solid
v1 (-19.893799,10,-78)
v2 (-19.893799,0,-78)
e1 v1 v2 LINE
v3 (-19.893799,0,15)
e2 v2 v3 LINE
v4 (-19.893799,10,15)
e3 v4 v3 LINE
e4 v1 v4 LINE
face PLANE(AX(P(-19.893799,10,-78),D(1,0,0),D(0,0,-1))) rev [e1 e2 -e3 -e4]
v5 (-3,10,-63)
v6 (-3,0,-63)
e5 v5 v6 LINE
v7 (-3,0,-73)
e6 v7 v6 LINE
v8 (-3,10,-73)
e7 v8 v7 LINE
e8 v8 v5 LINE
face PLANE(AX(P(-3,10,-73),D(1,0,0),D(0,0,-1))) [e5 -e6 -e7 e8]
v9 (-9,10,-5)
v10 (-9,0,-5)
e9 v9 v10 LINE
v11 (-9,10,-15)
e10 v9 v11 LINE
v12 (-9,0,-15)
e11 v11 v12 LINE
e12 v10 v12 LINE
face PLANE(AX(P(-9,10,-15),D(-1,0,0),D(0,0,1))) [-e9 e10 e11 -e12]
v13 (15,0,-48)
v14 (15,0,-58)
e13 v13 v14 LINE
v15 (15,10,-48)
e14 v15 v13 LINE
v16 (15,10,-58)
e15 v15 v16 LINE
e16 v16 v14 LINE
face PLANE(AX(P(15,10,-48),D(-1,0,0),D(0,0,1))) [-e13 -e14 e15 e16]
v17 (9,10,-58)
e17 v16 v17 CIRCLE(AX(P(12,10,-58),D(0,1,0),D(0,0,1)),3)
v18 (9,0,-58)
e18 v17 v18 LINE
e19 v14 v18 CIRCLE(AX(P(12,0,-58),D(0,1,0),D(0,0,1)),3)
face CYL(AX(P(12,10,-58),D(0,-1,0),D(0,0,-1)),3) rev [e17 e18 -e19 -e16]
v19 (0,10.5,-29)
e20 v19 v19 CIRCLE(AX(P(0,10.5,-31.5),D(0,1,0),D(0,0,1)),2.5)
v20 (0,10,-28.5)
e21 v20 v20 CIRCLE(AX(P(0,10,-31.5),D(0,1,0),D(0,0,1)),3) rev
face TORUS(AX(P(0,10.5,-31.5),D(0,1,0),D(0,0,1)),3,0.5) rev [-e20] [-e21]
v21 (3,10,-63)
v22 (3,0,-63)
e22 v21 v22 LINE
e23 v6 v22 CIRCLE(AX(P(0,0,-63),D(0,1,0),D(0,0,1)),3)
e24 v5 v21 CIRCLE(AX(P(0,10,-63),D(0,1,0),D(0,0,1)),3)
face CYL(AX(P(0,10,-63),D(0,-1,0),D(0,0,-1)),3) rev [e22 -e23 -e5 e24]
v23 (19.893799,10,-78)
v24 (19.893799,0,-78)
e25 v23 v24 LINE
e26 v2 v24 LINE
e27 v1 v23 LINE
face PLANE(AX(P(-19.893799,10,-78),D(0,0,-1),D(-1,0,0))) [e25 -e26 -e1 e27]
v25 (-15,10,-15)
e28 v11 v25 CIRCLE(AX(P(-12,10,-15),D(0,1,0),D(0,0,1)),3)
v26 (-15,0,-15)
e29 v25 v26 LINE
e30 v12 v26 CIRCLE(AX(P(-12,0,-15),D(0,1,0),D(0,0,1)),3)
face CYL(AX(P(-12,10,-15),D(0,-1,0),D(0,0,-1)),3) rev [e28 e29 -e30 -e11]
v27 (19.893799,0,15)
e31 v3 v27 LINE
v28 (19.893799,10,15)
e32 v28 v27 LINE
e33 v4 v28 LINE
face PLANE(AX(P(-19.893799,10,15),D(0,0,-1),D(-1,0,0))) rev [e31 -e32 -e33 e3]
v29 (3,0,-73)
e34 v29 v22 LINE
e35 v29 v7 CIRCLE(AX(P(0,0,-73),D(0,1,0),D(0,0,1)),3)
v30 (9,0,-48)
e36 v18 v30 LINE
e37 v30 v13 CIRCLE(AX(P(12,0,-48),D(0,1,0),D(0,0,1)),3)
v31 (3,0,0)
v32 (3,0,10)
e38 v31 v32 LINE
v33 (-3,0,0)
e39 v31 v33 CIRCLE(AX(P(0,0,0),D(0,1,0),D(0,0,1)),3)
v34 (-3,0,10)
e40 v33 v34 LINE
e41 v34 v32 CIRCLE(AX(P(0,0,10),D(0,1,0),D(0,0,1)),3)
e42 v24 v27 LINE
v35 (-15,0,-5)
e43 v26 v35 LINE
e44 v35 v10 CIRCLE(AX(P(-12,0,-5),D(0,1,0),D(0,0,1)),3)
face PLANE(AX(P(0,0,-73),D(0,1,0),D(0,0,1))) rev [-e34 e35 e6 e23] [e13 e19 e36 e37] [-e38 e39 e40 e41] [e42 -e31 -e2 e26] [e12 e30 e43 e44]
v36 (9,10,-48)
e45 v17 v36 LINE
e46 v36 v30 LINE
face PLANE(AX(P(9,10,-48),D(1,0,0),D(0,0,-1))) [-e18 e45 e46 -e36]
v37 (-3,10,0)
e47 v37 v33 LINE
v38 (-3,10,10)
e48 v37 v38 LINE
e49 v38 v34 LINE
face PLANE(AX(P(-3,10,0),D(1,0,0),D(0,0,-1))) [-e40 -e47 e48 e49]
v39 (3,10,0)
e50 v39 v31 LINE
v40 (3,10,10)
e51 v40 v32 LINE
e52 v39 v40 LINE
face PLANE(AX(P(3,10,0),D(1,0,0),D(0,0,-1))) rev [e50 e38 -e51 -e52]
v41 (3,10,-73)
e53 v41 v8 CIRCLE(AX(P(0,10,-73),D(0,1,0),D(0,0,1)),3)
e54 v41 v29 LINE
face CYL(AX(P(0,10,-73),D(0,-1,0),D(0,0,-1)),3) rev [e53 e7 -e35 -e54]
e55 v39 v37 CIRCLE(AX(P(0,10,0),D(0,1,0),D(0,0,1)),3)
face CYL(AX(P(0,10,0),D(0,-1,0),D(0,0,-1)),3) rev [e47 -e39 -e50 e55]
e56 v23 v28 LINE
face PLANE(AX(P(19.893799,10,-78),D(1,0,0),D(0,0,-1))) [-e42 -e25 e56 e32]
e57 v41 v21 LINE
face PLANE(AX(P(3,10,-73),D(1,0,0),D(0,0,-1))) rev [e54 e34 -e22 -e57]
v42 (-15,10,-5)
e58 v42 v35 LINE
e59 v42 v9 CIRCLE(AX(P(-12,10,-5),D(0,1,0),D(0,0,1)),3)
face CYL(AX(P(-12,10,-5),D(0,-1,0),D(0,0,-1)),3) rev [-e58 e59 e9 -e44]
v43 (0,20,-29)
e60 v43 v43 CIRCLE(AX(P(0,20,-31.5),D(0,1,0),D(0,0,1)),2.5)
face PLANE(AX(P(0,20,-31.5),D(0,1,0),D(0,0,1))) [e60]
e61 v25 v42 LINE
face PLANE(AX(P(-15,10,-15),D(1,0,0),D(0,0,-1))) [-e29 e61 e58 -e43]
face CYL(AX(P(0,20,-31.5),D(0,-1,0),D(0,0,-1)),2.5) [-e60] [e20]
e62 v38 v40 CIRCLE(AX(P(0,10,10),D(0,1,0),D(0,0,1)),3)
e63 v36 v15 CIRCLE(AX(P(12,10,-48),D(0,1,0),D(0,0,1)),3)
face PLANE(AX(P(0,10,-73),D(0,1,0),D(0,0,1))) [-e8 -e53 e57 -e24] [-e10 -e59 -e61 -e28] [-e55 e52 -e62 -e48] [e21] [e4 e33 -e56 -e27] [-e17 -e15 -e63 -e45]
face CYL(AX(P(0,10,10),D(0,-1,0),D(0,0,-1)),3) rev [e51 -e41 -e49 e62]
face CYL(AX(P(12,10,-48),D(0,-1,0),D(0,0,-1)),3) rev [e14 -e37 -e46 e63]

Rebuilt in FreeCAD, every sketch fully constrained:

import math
import FreeCAD as App
import Part
import Sketcher


def edges_at(feature, points):
    """Names of the edges that pass closest to the given points."""
    edges = feature.Shape.Edges
    near = lambda p: min(range(len(edges)), key=lambda i: edges[i].distToShape(Part.Vertex(*p))[0])
    return sorted({f"Edge{near(p) + 1}" for p in points})

doc = App.newDocument("Part")
body = doc.addObject("PartDesign::Body", "Body")

sketch1 = body.newObject("Sketcher::SketchObject", "Sketch")
sketch1.AttachmentSupport = (doc.getObject("XZ_Plane"), [""])
sketch1.MapMode = "FlatFace"
sketch1.addGeometry(Part.LineSegment(App.Vector(0, -78, 0), App.Vector(-19.893799, -78, 0)), False)
sketch1.addGeometry(Part.LineSegment(App.Vector(-19.893799, -78, 0), App.Vector(-19.893799, 15, 0)), False)
sketch1.addGeometry(Part.LineSegment(App.Vector(-19.893799, 15, 0), App.Vector(0, 15, 0)), False)
sketch1.addGeometry(Part.LineSegment(App.Vector(0, 15, 0), App.Vector(0, 13, 0)), False)
sketch1.addGeometry(Part.ArcOfCircle(Part.Circle(App.Vector(0, 10, 0), App.Vector(0, 0, 1), 3), math.radians(90), math.radians(180)), False)
sketch1.addGeometry(Part.LineSegment(App.Vector(-3, 10, 0), App.Vector(-3, 0, 0)), False)
sketch1.addGeometry(Part.ArcOfCircle(Part.Circle(App.Vector(0, 0, 0), App.Vector(0, 0, 1), 3), math.radians(180), math.radians(270)), False)
sketch1.addGeometry(Part.LineSegment(App.Vector(0, -3, 0), App.Vector(0, -60, 0)), False)
sketch1.addGeometry(Part.ArcOfCircle(Part.Circle(App.Vector(0, -63, 0), App.Vector(0, 0, 1), 3), math.radians(90), math.radians(180)), False)
sketch1.addGeometry(Part.LineSegment(App.Vector(-3, -63, 0), App.Vector(-3, -73, 0)), False)
sketch1.addGeometry(Part.ArcOfCircle(Part.Circle(App.Vector(0, -73, 0), App.Vector(0, 0, 1), 3), math.radians(180), math.radians(270)), False)
sketch1.addGeometry(Part.LineSegment(App.Vector(0, -76, 0), App.Vector(0, -78, 0)), False)
sketch1.addConstraint(Sketcher.Constraint("Coincident", 0, 2, 1, 1))
sketch1.addConstraint(Sketcher.Constraint("Coincident", 1, 2, 2, 1))
sketch1.addConstraint(Sketcher.Constraint("Coincident", 2, 2, 3, 1))
sketch1.addConstraint(Sketcher.Constraint("Coincident", 3, 2, 4, 1))
sketch1.addConstraint(Sketcher.Constraint("Tangent", 4, 2, 5, 1))
sketch1.addConstraint(Sketcher.Constraint("Tangent", 5, 2, 6, 1))
sketch1.addConstraint(Sketcher.Constraint("Coincident", 6, 2, 7, 1))
sketch1.addConstraint(Sketcher.Constraint("Coincident", 7, 2, 8, 1))
sketch1.addConstraint(Sketcher.Constraint("Tangent", 8, 2, 9, 1))
sketch1.addConstraint(Sketcher.Constraint("Tangent", 9, 2, 10, 1))
sketch1.addConstraint(Sketcher.Constraint("Coincident", 10, 2, 11, 1))
sketch1.addConstraint(Sketcher.Constraint("Coincident", 11, 2, 0, 1))
sketch1.addConstraint(Sketcher.Constraint("Horizontal", 0))
sketch1.addConstraint(Sketcher.Constraint("Vertical", 1))
sketch1.addConstraint(Sketcher.Constraint("Horizontal", 2))
sketch1.addConstraint(Sketcher.Constraint("Vertical", 3))
sketch1.addConstraint(Sketcher.Constraint("Vertical", 5))
sketch1.addConstraint(Sketcher.Constraint("Vertical", 7))
sketch1.addConstraint(Sketcher.Constraint("Vertical", 9))
sketch1.addConstraint(Sketcher.Constraint("Vertical", 11))
sketch1.addConstraint(Sketcher.Constraint("Coincident", 6, 3, -1, 1))
sketch1.addConstraint(Sketcher.Constraint("Equal", 4, 6))
sketch1.addConstraint(Sketcher.Constraint("Equal", 6, 8))
sketch1.addConstraint(Sketcher.Constraint("Equal", 8, 10))
sketch1.addConstraint(Sketcher.Constraint("PointOnObject", 8, 3, -2))
sketch1.addConstraint(Sketcher.Constraint("PointOnObject", 2, 2, -2))
sketch1.addConstraint(Sketcher.Constraint("PointOnObject", 6, 2, -2))
sketch1.addConstraint(Sketcher.Constraint("PointOnObject", 10, 2, -2))
sketch1.addConstraint(Sketcher.Constraint("Equal", 5, 9))
sketch1.addConstraint(Sketcher.Constraint("Equal", 3, 11))
sketch1.addConstraint(Sketcher.Constraint("Radius", 4, 3.0))
sketch1.addConstraint(Sketcher.Constraint("DistanceY", 1, 1, 1, 2, 93.0))
sketch1.addConstraint(Sketcher.Constraint("DistanceY", 3, 2, 3, 1, 2.0))
sketch1.addConstraint(Sketcher.Constraint("DistanceY", 5, 2, 5, 1, 10.0))
sketch1.addConstraint(Sketcher.Constraint("DistanceX", 0, 2, 0, 1, 19.893799))
pad1 = body.newObject("PartDesign::Pad", "Pad")
pad1.Profile = sketch1
pad1.Length = 10
pad1.Reversed = True
doc.recompute()

mirrored = body.newObject("PartDesign::Mirrored", "Mirrored")
mirrored.Originals = [pad1]
mirrored.MirrorPlane = (doc.getObject("YZ_Plane"), [""])
body.Tip = mirrored

sketch2 = body.newObject("Sketcher::SketchObject", "Sketch001")
sketch2.AttachmentSupport = (doc.getObject("XZ_Plane"), [""])
sketch2.MapMode = "FlatFace"
sketch2.addGeometry(Part.LineSegment(App.Vector(-15, -15, 0), App.Vector(-15, -5, 0)), False)
sketch2.addGeometry(Part.ArcOfCircle(Part.Circle(App.Vector(-12, -5, 0), App.Vector(0, 0, 1), 3), math.radians(0), math.radians(180)), False)
sketch2.addGeometry(Part.LineSegment(App.Vector(-9, -5, 0), App.Vector(-9, -15, 0)), False)
sketch2.addGeometry(Part.ArcOfCircle(Part.Circle(App.Vector(-12, -15, 0), App.Vector(0, 0, 1), 3), math.radians(180), math.radians(360)), False)
sketch2.addGeometry(Part.LineSegment(App.Vector(15, -48, 0), App.Vector(15, -58, 0)), False)
sketch2.addGeometry(Part.ArcOfCircle(Part.Circle(App.Vector(12, -58, 0), App.Vector(0, 0, 1), 3), math.radians(180), math.radians(360)), False)
sketch2.addGeometry(Part.LineSegment(App.Vector(9, -58, 0), App.Vector(9, -48, 0)), False)
sketch2.addGeometry(Part.ArcOfCircle(Part.Circle(App.Vector(12, -48, 0), App.Vector(0, 0, 1), 3), math.radians(0), math.radians(180)), False)
sketch2.addConstraint(Sketcher.Constraint("Tangent", 0, 2, 1, 2))
sketch2.addConstraint(Sketcher.Constraint("Tangent", 1, 1, 2, 1))
sketch2.addConstraint(Sketcher.Constraint("Tangent", 2, 2, 3, 2))
sketch2.addConstraint(Sketcher.Constraint("Tangent", 3, 1, 0, 1))
sketch2.addConstraint(Sketcher.Constraint("Tangent", 4, 2, 5, 2))
sketch2.addConstraint(Sketcher.Constraint("Tangent", 5, 1, 6, 1))
sketch2.addConstraint(Sketcher.Constraint("Tangent", 6, 2, 7, 2))
sketch2.addConstraint(Sketcher.Constraint("Tangent", 7, 1, 4, 1))
sketch2.addConstraint(Sketcher.Constraint("Vertical", 0))
sketch2.addConstraint(Sketcher.Constraint("Vertical", 2))
sketch2.addConstraint(Sketcher.Constraint("Vertical", 4))
sketch2.addConstraint(Sketcher.Constraint("Vertical", 6))
sketch2.addConstraint(Sketcher.Constraint("Equal", 3, 5))
sketch2.addConstraint(Sketcher.Constraint("Equal", 2, 4))
sketch2.addConstraint(Sketcher.Constraint("Radius", 1, 3.0))
sketch2.addConstraint(Sketcher.Constraint("DistanceY", 0, 1, 0, 2, 10.0))
sketch2.addConstraint(Sketcher.Constraint("DistanceX", 1, 3, -1, 1, 12.0))
sketch2.addConstraint(Sketcher.Constraint("DistanceY", 1, 3, -1, 1, 5.0))
sketch2.addConstraint(Sketcher.Constraint("DistanceX", -1, 1, 5, 3, 12.0))
sketch2.addConstraint(Sketcher.Constraint("DistanceY", 5, 3, -1, 1, 58.0))
pocket1 = body.newObject("PartDesign::Pocket", "Pocket")
pocket1.Profile = sketch2
pocket1.Type = "ThroughAll"

sketch3 = body.newObject("Sketcher::SketchObject", "Sketch002")
sketch3.AttachmentSupport = (doc.getObject("XZ_Plane"), [""])
sketch3.MapMode = "FlatFace"
sketch3.AttachmentOffset = App.Placement(App.Vector(0, 0, -10), App.Rotation())
sketch3.addGeometry(Part.Circle(App.Vector(0, -31.5, 0), App.Vector(0, 0, 1), 2.5), False)
sketch3.addConstraint(Sketcher.Constraint("PointOnObject", 0, 3, -2))
sketch3.addConstraint(Sketcher.Constraint("Diameter", 0, 5.0))
sketch3.addConstraint(Sketcher.Constraint("DistanceY", 0, 3, -1, 1, 31.5))
pad2 = body.newObject("PartDesign::Pad", "Pad001")
pad2.Profile = sketch3
pad2.Length = 10
pad2.Reversed = True
doc.recompute()

fillet = body.newObject("PartDesign::Fillet", "Fillet")
fillet.Base = (pad2, edges_at(pad2, [(0, 10, -34)]))
fillet.Radius = 0.5

doc.recompute()
